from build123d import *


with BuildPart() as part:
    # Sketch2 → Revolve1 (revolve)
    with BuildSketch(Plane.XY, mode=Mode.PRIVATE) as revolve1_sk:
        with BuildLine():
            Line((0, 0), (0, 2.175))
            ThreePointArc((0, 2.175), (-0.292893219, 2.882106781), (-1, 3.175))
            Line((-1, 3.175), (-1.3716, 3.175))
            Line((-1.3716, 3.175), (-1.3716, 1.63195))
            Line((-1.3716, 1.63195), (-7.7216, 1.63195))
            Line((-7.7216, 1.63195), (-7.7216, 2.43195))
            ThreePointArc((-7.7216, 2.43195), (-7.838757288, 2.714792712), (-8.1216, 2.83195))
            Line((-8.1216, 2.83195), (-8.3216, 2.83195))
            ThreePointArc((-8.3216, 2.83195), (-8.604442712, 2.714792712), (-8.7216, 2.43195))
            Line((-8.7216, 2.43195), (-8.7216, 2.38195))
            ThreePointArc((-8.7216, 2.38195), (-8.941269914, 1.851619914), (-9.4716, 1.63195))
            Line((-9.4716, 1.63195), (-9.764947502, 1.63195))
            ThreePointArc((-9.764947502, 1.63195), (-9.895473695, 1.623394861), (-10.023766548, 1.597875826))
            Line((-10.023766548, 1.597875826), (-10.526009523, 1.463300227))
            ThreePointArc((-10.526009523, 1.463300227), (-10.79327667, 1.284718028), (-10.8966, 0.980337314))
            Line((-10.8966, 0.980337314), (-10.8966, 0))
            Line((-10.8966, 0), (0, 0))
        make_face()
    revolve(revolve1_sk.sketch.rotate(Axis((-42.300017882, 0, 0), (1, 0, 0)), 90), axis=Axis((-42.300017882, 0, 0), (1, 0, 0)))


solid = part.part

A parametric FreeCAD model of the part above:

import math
import FreeCAD as App
import Part
import Sketcher
Q = App.Units.Quantity

doc = App.newDocument("Part")
params = doc.addObject("Spreadsheet::Sheet", "Params")
for row, (alias, value) in enumerate([
    ("sketch1_radius", "1 mm"),
    ("sketch1_radius2", "0.4 mm"),
    ("sketch1_radius3", "0.5 mm"),
    ("sketch1_radius4", "0.75 mm"),
    ("sketch1_width", "0.2 mm"),
    ("revolution_angle", "360 deg"),
], start=1):
    params.set(f"A{row}", alias)
    params.set(f"B{row}", "=" + value)
    params.setAlias(f"B{row}", alias)

body = doc.addObject("PartDesign::Body", "Body")

# Sketch on XY plane
sketch1 = body.newObject("Sketcher::SketchObject", "Sketch")
sketch1.AttachmentSupport = (doc.getObject("XY_Plane"), [""])
sketch1.MapMode = "FlatFace"
sketch1.addGeometry([
    Part.LineSegment(App.Vector(0, 0, 0), App.Vector(0, 2.17, 0)),  # 0
    Part.ArcOfCircle(Part.Circle(App.Vector(-1, 2.17, 0), App.Vector(0, 0, 1), 1), math.radians(0), math.radians(90)),  # 1
    Part.LineSegment(App.Vector(-1, 3.17, 0), App.Vector(-1.37, 3.17, 0)),  # 2
    Part.LineSegment(App.Vector(-1.37, 3.17, 0), App.Vector(-1.37, 1.63, 0)),  # 3
    Part.LineSegment(App.Vector(-1.37, 1.63, 0), App.Vector(-7.72, 1.63, 0)),  # 4
    Part.LineSegment(App.Vector(-7.72, 1.63, 0), App.Vector(-7.72, 2.43, 0)),  # 5
    Part.ArcOfCircle(Part.Circle(App.Vector(-8.12, 2.43, 0), App.Vector(0, 0, 1), 0.4), math.radians(0), math.radians(90)),  # 6
    Part.LineSegment(App.Vector(-8.12, 2.83, 0), App.Vector(-8.32, 2.83, 0)),  # 7
    Part.ArcOfCircle(Part.Circle(App.Vector(-8.32, 2.43, 0), App.Vector(0, 0, 1), 0.4), math.radians(90), math.radians(180)),  # 8
    Part.LineSegment(App.Vector(-8.72, 2.43, 0), App.Vector(-8.72, 2.38, 0)),  # 9
    Part.ArcOfCircle(Part.Circle(App.Vector(-9.47, 2.38, 0), App.Vector(0, 0, 1), 0.75), math.radians(-90), math.radians(0)),  # 10
    Part.LineSegment(App.Vector(-9.47, 1.63, 0), App.Vector(-9.76, 1.63, 0)),  # 11
    Part.ArcOfCircle(Part.Circle(App.Vector(-9.76, 0.63, 0), App.Vector(0, 0, 1), 1), math.radians(90), math.radians(105)),  # 12
    Part.LineSegment(App.Vector(-10.02, 1.6, 0), App.Vector(-10.53, 1.46, 0)),  # 13
    Part.ArcOfCircle(Part.Circle(App.Vector(-10.4, 0.98, 0), App.Vector(0, 0, 1), 0.5), math.radians(105), math.radians(180)),  # 14
    Part.LineSegment(App.Vector(-10.9, 0.98, 0), App.Vector(-10.9, 0, 0)),  # 15
    Part.LineSegment(App.Vector(-10.9, 0, 0), App.Vector(0, 0, 0)),  # 16
], False)
sketch1.addConstraint([
    Sketcher.Constraint("Tangent", 0, 2, 1, 1),
    Sketcher.Constraint("Tangent", 1, 2, 2, 1),
    Sketcher.Constraint("Coincident", 2, 2, 3, 1),
    Sketcher.Constraint("Coincident", 3, 2, 4, 1),
    Sketcher.Constraint("Coincident", 4, 2, 5, 1),
    Sketcher.Constraint("Tangent", 5, 2, 6, 1),
    Sketcher.Constraint("Tangent", 6, 2, 7, 1),
    Sketcher.Constraint("Tangent", 7, 2, 8, 1),
    Sketcher.Constraint("Tangent", 8, 2, 9, 1),
    Sketcher.Constraint("Tangent", 9, 2, 10, 2),
    Sketcher.Constraint("Tangent", 10, 1, 11, 1),
    Sketcher.Constraint("Tangent", 11, 2, 12, 1),
    Sketcher.Constraint("Tangent", 12, 2, 13, 1),
    Sketcher.Constraint("Tangent", 13, 2, 14, 1),
    Sketcher.Constraint("Tangent", 14, 2, 15, 1),
    Sketcher.Constraint("Coincident", 15, 2, 16, 1),
    Sketcher.Constraint("Coincident", 16, 2, 0, 1),
    Sketcher.Constraint("Vertical", 0),
    Sketcher.Constraint("Horizontal", 2),
    Sketcher.Constraint("Vertical", 3),
    Sketcher.Constraint("Horizontal", 4),
    Sketcher.Constraint("Vertical", 5),
    Sketcher.Constraint("Horizontal", 7),
    Sketcher.Constraint("Vertical", 9),
    Sketcher.Constraint("Horizontal", 11),
    Sketcher.Constraint("Vertical", 15),
    Sketcher.Constraint("Horizontal", 16),
    Sketcher.Constraint("Coincident", 16, 2, -1, 1),
    Sketcher.Constraint("Equal", 6, 8),
    Sketcher.Constraint("Equal", 1, 12),
    Sketcher.Constraint("Horizontal", 4, 2, 10, 1),
    Sketcher.Constraint("Radius", 1, Q("1 mm")),
    Sketcher.Constraint("Radius", 6, Q("0.4 mm")),
    Sketcher.Constraint("Radius", 14, Q("0.5 mm")),
    Sketcher.Constraint("Angle", 13, Q("-165 deg")),
    Sketcher.Constraint("Radius", 10, Q("0.75 mm")),
    Sketcher.Constraint("DistanceX", 7, 2, 7, 1, Q("0.2 mm")),
    Sketcher.Constraint("DistanceY", 5, 1, 5, 2, Q("0.8 mm")),
    Sketcher.Constraint("DistanceX", 4, 2, 4, 1, Q("6.35 mm")),
    Sketcher.Constraint("DistanceY", 0, 1, 0, 2, Q("2.175 mm")),
    Sketcher.Constraint("DistanceX", 2, 2, 2, 1, Q("0.3716 mm")),
    Sketcher.Constraint("DistanceX", 16, 1, 16, 2, Q("10.8966 mm")),
    Sketcher.Constraint("DistanceY", 3, 2, 3, 1, Q("1.54305 mm")),
    Sketcher.Constraint("DistanceY", -1, 1, 13, 2, Q("1.4633 mm")),
])
sketch1.setExpression("Constraints[31]", "Params.sketch1_radius")
sketch1.setExpression("Constraints[32]", "Params.sketch1_radius2")
sketch1.setExpression("Constraints[33]", "Params.sketch1_radius3")
sketch1.setExpression("Constraints[35]", "Params.sketch1_radius4")
sketch1.setExpression("Constraints[36]", "Params.sketch1_width")
revolution = body.newObject("PartDesign::Revolution", "Revolution")
revolution.Profile = sketch1
revolution.ReferenceAxis = (sketch1, ["H_Axis"])
revolution.setExpression("Angle", "Params.revolution_angle")

doc.recompute()
